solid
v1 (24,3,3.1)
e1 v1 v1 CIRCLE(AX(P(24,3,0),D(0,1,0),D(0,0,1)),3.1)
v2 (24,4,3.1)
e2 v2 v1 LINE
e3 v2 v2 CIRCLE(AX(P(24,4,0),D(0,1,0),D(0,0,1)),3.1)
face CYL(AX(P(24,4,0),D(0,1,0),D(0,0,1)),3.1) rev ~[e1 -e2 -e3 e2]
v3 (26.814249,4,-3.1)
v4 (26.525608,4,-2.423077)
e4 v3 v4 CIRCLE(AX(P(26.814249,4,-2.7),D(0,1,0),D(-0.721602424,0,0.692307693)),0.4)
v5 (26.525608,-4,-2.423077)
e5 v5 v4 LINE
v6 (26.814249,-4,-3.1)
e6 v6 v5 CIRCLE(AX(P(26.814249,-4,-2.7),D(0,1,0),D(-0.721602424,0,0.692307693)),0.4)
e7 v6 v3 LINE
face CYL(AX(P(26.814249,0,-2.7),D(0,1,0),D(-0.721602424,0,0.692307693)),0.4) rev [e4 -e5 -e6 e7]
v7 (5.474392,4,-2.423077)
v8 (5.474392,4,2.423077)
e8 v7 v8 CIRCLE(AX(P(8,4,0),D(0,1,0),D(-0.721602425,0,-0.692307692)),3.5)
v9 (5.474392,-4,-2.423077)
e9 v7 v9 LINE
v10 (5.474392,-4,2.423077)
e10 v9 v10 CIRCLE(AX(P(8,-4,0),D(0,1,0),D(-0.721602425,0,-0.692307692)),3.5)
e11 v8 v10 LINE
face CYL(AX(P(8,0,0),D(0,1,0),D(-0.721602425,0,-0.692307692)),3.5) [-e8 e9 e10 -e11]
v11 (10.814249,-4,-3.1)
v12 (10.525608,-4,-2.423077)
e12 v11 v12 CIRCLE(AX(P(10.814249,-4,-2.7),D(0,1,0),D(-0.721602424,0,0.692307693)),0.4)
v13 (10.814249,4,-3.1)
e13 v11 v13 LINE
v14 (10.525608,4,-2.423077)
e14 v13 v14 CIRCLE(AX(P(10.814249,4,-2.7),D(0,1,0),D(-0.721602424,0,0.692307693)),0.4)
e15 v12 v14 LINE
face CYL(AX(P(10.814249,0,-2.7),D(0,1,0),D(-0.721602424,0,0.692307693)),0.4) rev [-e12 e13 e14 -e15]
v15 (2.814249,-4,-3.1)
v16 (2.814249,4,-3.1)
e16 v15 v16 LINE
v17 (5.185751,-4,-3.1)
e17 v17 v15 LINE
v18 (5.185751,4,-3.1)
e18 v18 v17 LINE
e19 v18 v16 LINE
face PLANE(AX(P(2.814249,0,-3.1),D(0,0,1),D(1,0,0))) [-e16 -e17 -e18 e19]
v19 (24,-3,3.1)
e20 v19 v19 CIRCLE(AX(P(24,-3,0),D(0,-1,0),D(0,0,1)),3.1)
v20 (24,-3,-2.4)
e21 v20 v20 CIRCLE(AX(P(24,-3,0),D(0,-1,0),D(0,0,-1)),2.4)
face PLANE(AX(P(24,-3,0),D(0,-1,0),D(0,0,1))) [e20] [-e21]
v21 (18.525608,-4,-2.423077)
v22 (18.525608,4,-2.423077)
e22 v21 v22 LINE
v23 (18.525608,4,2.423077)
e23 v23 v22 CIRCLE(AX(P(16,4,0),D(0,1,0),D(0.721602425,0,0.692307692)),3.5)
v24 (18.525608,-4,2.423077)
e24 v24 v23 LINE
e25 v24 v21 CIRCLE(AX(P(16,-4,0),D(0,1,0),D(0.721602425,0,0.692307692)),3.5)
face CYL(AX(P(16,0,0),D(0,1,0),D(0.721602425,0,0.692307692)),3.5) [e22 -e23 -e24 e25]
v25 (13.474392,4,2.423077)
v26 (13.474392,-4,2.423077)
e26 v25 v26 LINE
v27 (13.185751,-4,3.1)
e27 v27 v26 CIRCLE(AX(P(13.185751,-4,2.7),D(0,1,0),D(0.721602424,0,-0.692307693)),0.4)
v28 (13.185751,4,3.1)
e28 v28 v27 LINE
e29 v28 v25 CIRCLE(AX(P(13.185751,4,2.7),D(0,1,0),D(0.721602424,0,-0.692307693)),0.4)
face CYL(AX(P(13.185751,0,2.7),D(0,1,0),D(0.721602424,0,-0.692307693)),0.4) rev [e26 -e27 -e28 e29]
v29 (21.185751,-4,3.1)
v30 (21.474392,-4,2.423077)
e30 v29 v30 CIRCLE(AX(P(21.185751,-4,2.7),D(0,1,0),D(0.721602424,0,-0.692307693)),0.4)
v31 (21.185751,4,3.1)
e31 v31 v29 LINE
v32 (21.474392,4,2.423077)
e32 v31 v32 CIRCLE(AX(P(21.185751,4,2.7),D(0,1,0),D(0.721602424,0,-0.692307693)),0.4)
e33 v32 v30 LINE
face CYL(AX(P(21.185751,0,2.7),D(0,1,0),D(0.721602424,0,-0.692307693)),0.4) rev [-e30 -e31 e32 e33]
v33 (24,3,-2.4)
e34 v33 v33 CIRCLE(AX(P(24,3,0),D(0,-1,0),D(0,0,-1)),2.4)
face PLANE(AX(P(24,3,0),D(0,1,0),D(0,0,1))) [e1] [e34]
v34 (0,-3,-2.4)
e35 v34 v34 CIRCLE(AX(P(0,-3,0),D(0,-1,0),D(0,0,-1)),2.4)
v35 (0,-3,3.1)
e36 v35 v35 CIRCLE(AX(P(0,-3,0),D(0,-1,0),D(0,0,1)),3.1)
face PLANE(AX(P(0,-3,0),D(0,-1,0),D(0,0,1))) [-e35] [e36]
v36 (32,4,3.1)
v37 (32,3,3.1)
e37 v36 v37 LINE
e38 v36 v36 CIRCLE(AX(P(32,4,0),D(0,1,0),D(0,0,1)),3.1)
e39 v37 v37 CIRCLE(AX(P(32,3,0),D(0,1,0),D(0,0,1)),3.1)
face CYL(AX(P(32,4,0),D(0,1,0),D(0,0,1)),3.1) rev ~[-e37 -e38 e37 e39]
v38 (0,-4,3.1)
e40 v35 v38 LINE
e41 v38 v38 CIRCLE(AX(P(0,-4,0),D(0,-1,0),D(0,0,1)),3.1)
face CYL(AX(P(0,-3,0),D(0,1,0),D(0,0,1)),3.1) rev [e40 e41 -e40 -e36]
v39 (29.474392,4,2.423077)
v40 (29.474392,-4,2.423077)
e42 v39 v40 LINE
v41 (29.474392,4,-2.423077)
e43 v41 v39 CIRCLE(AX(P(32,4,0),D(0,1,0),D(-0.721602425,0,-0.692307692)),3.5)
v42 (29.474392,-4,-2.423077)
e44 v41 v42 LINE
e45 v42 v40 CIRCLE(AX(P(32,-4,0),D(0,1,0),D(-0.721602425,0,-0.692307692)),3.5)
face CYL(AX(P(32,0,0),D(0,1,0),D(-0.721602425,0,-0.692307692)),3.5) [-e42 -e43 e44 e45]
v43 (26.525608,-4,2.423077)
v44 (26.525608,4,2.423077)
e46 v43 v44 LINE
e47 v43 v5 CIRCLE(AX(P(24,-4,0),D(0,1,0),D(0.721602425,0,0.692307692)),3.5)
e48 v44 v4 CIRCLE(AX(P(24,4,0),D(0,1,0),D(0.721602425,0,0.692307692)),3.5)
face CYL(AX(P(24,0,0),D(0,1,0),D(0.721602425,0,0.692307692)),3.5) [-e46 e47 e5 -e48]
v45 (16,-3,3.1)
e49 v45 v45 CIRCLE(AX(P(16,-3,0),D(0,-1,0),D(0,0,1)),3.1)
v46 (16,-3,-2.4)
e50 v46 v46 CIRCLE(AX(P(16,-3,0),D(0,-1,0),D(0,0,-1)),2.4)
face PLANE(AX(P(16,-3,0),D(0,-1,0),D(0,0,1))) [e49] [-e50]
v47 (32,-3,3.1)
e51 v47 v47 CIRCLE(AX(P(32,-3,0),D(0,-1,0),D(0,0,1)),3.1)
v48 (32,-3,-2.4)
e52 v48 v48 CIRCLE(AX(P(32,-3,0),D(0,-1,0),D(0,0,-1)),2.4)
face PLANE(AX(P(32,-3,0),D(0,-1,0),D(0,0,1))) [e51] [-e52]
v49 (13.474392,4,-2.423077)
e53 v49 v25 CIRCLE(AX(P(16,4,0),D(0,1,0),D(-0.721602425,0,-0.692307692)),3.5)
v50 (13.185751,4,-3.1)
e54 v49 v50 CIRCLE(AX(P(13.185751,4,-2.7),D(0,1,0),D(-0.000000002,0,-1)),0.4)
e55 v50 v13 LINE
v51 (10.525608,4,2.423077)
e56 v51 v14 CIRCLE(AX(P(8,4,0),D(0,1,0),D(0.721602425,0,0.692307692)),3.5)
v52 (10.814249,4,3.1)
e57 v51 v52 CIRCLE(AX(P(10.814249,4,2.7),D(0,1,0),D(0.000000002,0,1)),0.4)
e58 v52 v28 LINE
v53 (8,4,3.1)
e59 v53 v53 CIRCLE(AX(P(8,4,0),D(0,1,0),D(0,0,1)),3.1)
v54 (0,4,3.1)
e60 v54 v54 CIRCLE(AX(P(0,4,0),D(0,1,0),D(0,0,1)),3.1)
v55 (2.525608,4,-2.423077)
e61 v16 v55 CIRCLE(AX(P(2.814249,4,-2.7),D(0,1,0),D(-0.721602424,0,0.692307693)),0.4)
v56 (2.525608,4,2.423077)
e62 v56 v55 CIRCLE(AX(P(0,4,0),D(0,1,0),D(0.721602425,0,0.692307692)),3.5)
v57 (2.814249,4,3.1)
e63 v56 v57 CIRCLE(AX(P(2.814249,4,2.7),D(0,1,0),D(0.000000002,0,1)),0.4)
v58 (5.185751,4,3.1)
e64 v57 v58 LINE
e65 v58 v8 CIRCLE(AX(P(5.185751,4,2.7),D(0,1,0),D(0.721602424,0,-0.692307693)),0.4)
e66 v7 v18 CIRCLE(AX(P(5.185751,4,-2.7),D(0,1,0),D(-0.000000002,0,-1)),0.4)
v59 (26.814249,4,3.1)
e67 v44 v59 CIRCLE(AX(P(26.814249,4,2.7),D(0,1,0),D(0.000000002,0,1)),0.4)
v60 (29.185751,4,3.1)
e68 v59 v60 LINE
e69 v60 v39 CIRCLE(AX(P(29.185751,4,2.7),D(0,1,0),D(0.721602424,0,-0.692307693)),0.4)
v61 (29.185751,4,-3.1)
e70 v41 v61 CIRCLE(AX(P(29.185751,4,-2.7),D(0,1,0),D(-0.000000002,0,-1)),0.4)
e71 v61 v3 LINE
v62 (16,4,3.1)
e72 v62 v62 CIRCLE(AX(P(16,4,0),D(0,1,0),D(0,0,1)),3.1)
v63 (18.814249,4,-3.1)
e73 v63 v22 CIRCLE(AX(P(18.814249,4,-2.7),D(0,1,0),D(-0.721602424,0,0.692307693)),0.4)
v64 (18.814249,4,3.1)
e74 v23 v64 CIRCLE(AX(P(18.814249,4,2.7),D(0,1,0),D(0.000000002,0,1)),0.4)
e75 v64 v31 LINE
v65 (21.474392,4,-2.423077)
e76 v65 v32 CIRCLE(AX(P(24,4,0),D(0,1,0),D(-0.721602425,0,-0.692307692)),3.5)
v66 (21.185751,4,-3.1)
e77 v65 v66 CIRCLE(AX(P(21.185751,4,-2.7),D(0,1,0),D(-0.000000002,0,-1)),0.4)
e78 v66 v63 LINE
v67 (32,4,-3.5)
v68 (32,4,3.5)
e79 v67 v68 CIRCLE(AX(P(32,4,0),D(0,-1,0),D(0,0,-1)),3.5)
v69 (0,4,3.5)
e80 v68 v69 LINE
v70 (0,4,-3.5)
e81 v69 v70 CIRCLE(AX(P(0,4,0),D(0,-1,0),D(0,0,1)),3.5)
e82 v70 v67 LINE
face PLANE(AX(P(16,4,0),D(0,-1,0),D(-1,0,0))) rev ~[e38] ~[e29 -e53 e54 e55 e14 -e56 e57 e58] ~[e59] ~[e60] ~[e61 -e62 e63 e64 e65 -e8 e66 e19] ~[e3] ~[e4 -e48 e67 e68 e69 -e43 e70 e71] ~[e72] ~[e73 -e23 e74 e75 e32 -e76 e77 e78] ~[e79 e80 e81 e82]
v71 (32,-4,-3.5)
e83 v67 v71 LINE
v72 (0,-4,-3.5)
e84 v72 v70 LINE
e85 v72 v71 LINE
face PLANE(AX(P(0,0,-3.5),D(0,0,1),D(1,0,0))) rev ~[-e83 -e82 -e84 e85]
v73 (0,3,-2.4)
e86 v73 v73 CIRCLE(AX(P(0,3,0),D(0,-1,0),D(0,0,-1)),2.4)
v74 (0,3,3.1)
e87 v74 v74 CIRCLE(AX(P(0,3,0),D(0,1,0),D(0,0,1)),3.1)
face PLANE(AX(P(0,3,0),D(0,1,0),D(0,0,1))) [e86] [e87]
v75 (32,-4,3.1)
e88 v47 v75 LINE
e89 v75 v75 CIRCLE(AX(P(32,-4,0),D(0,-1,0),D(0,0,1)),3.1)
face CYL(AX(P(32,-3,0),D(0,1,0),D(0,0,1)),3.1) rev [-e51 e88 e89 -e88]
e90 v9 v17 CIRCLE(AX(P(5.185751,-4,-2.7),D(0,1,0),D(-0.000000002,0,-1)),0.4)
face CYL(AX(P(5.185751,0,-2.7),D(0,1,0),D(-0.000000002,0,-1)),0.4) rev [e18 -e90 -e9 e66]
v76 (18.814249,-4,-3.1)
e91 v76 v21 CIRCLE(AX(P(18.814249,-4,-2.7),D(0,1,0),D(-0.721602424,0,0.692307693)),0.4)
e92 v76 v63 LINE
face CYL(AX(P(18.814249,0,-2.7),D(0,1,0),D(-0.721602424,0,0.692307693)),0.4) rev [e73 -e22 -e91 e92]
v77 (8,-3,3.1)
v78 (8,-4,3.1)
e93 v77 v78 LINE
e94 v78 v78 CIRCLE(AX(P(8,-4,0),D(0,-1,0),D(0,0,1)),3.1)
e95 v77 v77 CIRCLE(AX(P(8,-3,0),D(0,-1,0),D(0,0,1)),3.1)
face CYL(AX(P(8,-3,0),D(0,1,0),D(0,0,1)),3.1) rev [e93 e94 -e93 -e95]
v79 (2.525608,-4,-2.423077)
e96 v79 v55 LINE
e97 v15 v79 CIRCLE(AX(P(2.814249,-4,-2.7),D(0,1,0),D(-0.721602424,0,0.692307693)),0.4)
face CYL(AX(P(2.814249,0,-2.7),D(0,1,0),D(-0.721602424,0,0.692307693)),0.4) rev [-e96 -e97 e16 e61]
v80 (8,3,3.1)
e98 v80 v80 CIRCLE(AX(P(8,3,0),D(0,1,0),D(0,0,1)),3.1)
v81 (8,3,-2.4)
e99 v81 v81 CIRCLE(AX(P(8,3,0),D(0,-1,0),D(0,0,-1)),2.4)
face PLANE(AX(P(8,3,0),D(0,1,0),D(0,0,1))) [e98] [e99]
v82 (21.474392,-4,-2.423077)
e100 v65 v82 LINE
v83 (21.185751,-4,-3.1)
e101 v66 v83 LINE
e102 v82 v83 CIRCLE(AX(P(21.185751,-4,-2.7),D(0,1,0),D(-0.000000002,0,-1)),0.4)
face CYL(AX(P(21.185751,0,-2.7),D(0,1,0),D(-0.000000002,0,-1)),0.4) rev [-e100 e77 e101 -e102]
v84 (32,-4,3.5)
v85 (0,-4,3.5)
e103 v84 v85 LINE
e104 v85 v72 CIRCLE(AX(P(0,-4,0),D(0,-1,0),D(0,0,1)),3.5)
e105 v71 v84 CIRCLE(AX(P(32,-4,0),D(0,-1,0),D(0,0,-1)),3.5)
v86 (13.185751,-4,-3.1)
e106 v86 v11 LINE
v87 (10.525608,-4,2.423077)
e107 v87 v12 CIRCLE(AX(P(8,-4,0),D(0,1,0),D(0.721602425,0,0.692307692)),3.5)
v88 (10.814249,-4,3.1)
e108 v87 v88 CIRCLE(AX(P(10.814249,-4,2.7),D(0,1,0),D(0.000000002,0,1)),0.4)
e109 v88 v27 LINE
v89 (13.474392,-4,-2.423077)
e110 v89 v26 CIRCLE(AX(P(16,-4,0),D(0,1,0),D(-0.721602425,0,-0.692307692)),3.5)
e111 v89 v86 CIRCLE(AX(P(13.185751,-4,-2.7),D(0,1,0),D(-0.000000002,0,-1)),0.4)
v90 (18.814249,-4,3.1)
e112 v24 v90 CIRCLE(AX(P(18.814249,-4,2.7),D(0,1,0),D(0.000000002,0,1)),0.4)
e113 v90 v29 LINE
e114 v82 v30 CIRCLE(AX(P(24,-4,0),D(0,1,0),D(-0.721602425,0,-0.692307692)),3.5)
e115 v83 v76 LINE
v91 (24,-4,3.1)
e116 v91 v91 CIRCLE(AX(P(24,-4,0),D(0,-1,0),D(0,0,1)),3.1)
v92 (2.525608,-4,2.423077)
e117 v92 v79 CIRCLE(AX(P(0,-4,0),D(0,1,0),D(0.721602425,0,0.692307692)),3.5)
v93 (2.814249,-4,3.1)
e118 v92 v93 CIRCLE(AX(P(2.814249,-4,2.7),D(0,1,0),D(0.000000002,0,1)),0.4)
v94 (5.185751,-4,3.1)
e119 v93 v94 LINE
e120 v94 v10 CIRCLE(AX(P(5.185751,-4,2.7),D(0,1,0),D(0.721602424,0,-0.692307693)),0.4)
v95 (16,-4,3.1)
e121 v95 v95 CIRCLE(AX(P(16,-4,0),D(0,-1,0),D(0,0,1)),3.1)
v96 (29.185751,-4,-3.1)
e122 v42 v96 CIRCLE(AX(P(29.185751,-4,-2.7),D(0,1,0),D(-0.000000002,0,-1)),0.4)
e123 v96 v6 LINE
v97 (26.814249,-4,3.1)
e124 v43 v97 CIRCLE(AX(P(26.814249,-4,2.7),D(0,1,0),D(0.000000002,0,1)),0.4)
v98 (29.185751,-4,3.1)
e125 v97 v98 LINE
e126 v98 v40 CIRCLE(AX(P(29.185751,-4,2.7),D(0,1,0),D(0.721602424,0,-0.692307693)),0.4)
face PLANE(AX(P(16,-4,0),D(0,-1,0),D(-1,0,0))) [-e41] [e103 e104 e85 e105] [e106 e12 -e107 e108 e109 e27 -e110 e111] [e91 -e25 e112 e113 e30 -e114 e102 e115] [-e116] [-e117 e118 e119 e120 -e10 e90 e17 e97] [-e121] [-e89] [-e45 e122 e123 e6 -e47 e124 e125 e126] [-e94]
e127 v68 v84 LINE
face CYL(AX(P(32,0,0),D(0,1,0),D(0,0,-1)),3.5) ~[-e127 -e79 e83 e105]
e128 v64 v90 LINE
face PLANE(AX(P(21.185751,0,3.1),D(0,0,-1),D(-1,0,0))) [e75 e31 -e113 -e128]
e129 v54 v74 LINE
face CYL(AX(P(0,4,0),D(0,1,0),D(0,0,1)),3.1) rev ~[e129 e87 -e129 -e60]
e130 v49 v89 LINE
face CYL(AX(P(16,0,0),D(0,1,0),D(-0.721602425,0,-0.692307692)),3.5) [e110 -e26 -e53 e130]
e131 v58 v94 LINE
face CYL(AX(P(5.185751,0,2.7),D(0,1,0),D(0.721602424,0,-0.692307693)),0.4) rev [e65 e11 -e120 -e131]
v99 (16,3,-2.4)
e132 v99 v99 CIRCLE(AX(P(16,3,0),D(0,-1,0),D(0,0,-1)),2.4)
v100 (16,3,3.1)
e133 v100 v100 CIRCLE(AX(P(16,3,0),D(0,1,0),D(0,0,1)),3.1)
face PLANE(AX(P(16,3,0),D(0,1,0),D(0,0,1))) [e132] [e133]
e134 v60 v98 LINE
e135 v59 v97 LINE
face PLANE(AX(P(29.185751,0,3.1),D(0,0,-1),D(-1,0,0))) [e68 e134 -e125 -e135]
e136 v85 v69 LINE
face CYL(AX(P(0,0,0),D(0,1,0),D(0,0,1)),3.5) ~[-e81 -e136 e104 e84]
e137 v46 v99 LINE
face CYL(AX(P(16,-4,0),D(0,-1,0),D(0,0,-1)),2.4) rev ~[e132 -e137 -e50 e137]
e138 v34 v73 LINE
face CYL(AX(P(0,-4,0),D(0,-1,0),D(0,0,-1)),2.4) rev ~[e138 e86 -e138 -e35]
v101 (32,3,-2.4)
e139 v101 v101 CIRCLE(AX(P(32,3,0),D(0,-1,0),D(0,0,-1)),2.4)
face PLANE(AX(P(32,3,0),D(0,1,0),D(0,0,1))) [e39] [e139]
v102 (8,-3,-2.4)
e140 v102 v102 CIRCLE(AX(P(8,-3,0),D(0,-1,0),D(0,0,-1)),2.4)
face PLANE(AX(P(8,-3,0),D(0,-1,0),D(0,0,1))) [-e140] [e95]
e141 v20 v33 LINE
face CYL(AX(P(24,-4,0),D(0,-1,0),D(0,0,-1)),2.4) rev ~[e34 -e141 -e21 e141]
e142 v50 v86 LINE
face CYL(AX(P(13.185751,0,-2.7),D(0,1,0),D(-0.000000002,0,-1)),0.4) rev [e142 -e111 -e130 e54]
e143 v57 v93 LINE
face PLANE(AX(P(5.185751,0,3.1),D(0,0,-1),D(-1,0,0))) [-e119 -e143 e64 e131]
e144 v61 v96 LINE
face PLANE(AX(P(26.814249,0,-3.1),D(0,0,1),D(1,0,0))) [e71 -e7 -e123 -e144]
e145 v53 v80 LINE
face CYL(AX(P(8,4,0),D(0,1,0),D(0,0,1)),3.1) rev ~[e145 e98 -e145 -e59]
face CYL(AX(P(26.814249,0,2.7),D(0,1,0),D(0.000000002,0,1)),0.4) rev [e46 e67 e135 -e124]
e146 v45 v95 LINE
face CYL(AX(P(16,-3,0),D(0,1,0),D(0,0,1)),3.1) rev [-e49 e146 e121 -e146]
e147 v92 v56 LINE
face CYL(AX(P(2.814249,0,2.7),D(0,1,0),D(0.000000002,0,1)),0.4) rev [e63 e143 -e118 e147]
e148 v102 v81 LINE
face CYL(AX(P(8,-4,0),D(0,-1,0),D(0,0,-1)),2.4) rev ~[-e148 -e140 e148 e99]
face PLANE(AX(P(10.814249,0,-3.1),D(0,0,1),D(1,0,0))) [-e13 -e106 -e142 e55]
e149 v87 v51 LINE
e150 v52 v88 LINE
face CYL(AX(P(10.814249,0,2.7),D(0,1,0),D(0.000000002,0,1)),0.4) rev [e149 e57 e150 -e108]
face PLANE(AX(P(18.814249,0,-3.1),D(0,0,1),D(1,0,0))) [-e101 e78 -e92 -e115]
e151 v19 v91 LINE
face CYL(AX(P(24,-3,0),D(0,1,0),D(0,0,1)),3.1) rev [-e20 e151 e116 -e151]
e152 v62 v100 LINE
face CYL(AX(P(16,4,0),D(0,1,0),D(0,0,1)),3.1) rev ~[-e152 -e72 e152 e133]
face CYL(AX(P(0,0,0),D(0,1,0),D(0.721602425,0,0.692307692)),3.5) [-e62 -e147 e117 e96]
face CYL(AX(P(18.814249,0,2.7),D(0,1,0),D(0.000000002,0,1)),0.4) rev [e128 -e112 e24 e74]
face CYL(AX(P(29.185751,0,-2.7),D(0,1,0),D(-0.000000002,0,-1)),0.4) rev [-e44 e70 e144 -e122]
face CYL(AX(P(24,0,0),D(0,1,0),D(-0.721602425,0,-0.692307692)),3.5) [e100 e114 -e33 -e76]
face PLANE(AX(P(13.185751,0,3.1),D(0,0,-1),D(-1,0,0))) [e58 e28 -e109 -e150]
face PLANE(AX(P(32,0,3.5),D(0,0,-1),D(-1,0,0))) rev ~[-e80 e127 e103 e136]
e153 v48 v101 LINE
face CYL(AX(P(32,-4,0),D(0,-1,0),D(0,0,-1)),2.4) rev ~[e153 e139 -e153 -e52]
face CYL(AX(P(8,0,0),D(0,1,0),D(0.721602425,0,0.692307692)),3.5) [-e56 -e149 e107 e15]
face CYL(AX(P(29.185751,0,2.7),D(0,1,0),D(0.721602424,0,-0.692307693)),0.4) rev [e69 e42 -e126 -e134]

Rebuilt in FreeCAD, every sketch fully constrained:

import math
import FreeCAD as App
import Part
import Sketcher
Q = App.Units.Quantity

doc = App.newDocument("Part")
body = doc.addObject("PartDesign::Body", "Body")

sketch1 = body.newObject("Sketcher::SketchObject", "Sketch")
sketch1.AttachmentSupport = (doc.getObject("XZ_Plane"), [""])
sketch1.MapMode = "FlatFace"
sketch1.addGeometry(Part.LineSegment(App.Vector(32, -3.5, 0), App.Vector(0, -3.5, 0)), False)
sketch1.addGeometry(Part.ArcOfCircle(Part.Circle(App.Vector(0, 0, 0), App.Vector(0, 0, 1), 3.5), math.radians(90), math.radians(270)), False)
sketch1.addGeometry(Part.LineSegment(App.Vector(0, 3.5, 0), App.Vector(32, 3.5, 0)), False)
sketch1.addGeometry(Part.ArcOfCircle(Part.Circle(App.Vector(32, 0, 0), App.Vector(0, 0, 1), 3.5), math.radians(-90), math.radians(90)), False)
sketch1.addConstraint(Sketcher.Constraint("Tangent", 0, 2, 1, 2))
sketch1.addConstraint(Sketcher.Constraint("Tangent", 1, 1, 2, 1))
sketch1.addConstraint(Sketcher.Constraint("Tangent", 2, 2, 3, 2))
sketch1.addConstraint(Sketcher.Constraint("Tangent", 3, 1, 0, 1))
sketch1.addConstraint(Sketcher.Constraint("Horizontal", 0))
sketch1.addConstraint(Sketcher.Constraint("Horizontal", 2))
sketch1.addConstraint(Sketcher.Constraint("Coincident", 1, 3, -1, 1))
sketch1.addConstraint(Sketcher.Constraint("Radius", 1, Q("3.5 mm")))
sketch1.addConstraint(Sketcher.Constraint("DistanceX", 0, 2, 0, 1, Q("32 mm")))
pad1 = body.newObject("PartDesign::Pad", "Pad")
pad1.Profile = sketch1
pad1.Length = 8
pad1.Midplane = True

sketch2 = body.newObject("Sketcher::SketchObject", "Sketch001")
sketch2.AttachmentSupport = (doc.getObject("XZ_Plane"), [""])
sketch2.MapMode = "FlatFace"
sketch2.AttachmentOffset = App.Placement(App.Vector(0, 0, -4), App.Rotation())
sketch2.addGeometry(Part.Circle(App.Vector(0, 0, 0), App.Vector(0, 0, 1), 3.1), False)
sketch2.addConstraint(Sketcher.Constraint("Coincident", 0, 3, -1, 1))
sketch2.addConstraint(Sketcher.Constraint("Diameter", 0, Q("6.2 mm")))
pocket1 = body.newObject("PartDesign::Pocket", "Pocket")
pocket1.Profile = sketch2
pocket1.Length = 1
pocket1.Reversed = True

sketch3 = body.newObject("Sketcher::SketchObject", "Sketch002")
sketch3.AttachmentSupport = (doc.getObject("XZ_Plane"), [""])
sketch3.MapMode = "FlatFace"
sketch3.AttachmentOffset = App.Placement(App.Vector(0, 0, 3), App.Rotation())
sketch3.addGeometry(Part.Circle(App.Vector(0, 0, 0), App.Vector(0, 0, 1), 3.1), False)
sketch3.addConstraint(Sketcher.Constraint("Coincident", 0, 3, -1, 1))
sketch3.addConstraint(Sketcher.Constraint("Diameter", 0, Q("6.2 mm")))
pocket2 = body.newObject("PartDesign::Pocket", "Pocket001")
pocket2.Profile = sketch3
pocket2.Length = 1
pocket2.Reversed = True

sketch4 = body.newObject("Sketcher::SketchObject", "Sketch003")
sketch4.AttachmentSupport = (doc.getObject("XZ_Plane"), [""])
sketch4.MapMode = "FlatFace"
sketch4.AttachmentOffset = App.Placement(App.Vector(0, 0, 4), App.Rotation())
sketch4.addGeometry(Part.Circle(App.Vector(0, 0, 0), App.Vector(0, 0, 1), 2.4), False)
sketch4.addConstraint(Sketcher.Constraint("Coincident", 0, 3, -1, 1))
sketch4.addConstraint(Sketcher.Constraint("Diameter", 0, Q("4.8 mm")))
pocket3 = body.newObject("PartDesign::Pocket", "Pocket002")
pocket3.Profile = sketch4
pocket3.Type = "ThroughAll"
doc.recompute()

linearpattern = body.newObject("PartDesign::LinearPattern", "LinearPattern")
linearpattern.Originals = [pocket1, pocket2, pocket3]
linearpattern.Direction = (doc.getObject("X_Axis"), [""])
linearpattern.Mode = "offset"
linearpattern.Offset = 8
linearpattern.Occurrences = 5
body.Tip = linearpattern

sketch5 = body.newObject("Sketcher::SketchObject", "Sketch004")
sketch5.AttachmentSupport = (doc.getObject("XZ_Plane"), [""])
sketch5.MapMode = "FlatFace"
sketch5.addGeometry(Part.LineSegment(App.Vector(5.19, -3.1, 0), App.Vector(2.81, -3.1, 0)), False)
sketch5.addGeometry(Part.ArcOfCircle(Part.Circle(App.Vector(2.81, -2.7, 0), App.Vector(0, 0, 1), 0.4), math.radians(136), math.radians(270)), False)
sketch5.addGeometry(Part.ArcOfCircle(Part.Circle(App.Vector(0, 0, 0), App.Vector(0, 0, 1), 3.5), math.radians(-44), math.radians(44)), False)
sketch5.addGeometry(Part.ArcOfCircle(Part.Circle(App.Vector(2.81, 2.7, 0), App.Vector(0, 0, 1), 0.4), math.radians(90), math.radians(224)), False)
sketch5.addGeometry(Part.LineSegment(App.Vector(2.81, 3.1, 0), App.Vector(5.19, 3.1, 0)), False)
sketch5.addGeometry(Part.ArcOfCircle(Part.Circle(App.Vector(5.19, 2.7, 0), App.Vector(0, 0, 1), 0.4), math.radians(-44), math.radians(90)), False)
sketch5.addGeometry(Part.ArcOfCircle(Part.Circle(App.Vector(8, 0, 0), App.Vector(0, 0, 1), 3.5), math.radians(136), math.radians(224)), False)
sketch5.addGeometry(Part.ArcOfCircle(Part.Circle(App.Vector(5.19, -2.7, 0), App.Vector(0, 0, 1), 0.4), math.radians(-90), math.radians(44)), False)
sketch5.addConstraint(Sketcher.Constraint("Tangent", 0, 2, 1, 2))
sketch5.addConstraint(Sketcher.Constraint("Tangent", 1, 1, 2, 1))
sketch5.addConstraint(Sketcher.Constraint("Tangent", 2, 2, 3, 2))
sketch5.addConstraint(Sketcher.Constraint("Tangent", 3, 1, 4, 1))
sketch5.addConstraint(Sketcher.Constraint("Tangent", 4, 2, 5, 2))
sketch5.addConstraint(Sketcher.Constraint("Tangent", 5, 1, 6, 1))
sketch5.addConstraint(Sketcher.Constraint("Tangent", 6, 2, 7, 2))
sketch5.addConstraint(Sketcher.Constraint("Tangent", 7, 1, 0, 1))
sketch5.addConstraint(Sketcher.Constraint("Horizontal", 0))
sketch5.addConstraint(Sketcher.Constraint("Horizontal", 4))
sketch5.addConstraint(Sketcher.Constraint("Coincident", 2, 3, -1, 1))
sketch5.addConstraint(Sketcher.Constraint("Equal", 1, 3))
sketch5.addConstraint(Sketcher.Constraint("Equal", 3, 5))
sketch5.addConstraint(Sketcher.Constraint("Equal", 2, 6))
sketch5.addConstraint(Sketcher.Constraint("Equal", 5, 7))
sketch5.addConstraint(Sketcher.Constraint("Symmetric", 5, 3, 7, 3, -1))
sketch5.addConstraint(Sketcher.Constraint("Radius", 1, Q("0.4 mm")))
sketch5.addConstraint(Sketcher.Constraint("Radius", 2, Q("3.5 mm")))
sketch5.addConstraint(Sketcher.Constraint("DistanceX", -1, 1, 6, 3, Q("8 mm")))
sketch5.addConstraint(Sketcher.Constraint("DistanceY", 1, 3, -1, 1, Q("2.7 mm")))
pocket4 = body.newObject("PartDesign::Pocket", "Pocket003")
pocket4.Profile = sketch5
pocket4.Length = 73.791364
pocket4.Midplane = True
doc.recompute()

linearpattern2 = body.newObject("PartDesign::LinearPattern", "LinearPattern001")
linearpattern2.Originals = [pocket4]
linearpattern2.Direction = (doc.getObject("X_Axis"), [""])
linearpattern2.Mode = "offset"
linearpattern2.Offset = 8
linearpattern2.Occurrences = 4
body.Tip = linearpattern2

doc.recompute()
